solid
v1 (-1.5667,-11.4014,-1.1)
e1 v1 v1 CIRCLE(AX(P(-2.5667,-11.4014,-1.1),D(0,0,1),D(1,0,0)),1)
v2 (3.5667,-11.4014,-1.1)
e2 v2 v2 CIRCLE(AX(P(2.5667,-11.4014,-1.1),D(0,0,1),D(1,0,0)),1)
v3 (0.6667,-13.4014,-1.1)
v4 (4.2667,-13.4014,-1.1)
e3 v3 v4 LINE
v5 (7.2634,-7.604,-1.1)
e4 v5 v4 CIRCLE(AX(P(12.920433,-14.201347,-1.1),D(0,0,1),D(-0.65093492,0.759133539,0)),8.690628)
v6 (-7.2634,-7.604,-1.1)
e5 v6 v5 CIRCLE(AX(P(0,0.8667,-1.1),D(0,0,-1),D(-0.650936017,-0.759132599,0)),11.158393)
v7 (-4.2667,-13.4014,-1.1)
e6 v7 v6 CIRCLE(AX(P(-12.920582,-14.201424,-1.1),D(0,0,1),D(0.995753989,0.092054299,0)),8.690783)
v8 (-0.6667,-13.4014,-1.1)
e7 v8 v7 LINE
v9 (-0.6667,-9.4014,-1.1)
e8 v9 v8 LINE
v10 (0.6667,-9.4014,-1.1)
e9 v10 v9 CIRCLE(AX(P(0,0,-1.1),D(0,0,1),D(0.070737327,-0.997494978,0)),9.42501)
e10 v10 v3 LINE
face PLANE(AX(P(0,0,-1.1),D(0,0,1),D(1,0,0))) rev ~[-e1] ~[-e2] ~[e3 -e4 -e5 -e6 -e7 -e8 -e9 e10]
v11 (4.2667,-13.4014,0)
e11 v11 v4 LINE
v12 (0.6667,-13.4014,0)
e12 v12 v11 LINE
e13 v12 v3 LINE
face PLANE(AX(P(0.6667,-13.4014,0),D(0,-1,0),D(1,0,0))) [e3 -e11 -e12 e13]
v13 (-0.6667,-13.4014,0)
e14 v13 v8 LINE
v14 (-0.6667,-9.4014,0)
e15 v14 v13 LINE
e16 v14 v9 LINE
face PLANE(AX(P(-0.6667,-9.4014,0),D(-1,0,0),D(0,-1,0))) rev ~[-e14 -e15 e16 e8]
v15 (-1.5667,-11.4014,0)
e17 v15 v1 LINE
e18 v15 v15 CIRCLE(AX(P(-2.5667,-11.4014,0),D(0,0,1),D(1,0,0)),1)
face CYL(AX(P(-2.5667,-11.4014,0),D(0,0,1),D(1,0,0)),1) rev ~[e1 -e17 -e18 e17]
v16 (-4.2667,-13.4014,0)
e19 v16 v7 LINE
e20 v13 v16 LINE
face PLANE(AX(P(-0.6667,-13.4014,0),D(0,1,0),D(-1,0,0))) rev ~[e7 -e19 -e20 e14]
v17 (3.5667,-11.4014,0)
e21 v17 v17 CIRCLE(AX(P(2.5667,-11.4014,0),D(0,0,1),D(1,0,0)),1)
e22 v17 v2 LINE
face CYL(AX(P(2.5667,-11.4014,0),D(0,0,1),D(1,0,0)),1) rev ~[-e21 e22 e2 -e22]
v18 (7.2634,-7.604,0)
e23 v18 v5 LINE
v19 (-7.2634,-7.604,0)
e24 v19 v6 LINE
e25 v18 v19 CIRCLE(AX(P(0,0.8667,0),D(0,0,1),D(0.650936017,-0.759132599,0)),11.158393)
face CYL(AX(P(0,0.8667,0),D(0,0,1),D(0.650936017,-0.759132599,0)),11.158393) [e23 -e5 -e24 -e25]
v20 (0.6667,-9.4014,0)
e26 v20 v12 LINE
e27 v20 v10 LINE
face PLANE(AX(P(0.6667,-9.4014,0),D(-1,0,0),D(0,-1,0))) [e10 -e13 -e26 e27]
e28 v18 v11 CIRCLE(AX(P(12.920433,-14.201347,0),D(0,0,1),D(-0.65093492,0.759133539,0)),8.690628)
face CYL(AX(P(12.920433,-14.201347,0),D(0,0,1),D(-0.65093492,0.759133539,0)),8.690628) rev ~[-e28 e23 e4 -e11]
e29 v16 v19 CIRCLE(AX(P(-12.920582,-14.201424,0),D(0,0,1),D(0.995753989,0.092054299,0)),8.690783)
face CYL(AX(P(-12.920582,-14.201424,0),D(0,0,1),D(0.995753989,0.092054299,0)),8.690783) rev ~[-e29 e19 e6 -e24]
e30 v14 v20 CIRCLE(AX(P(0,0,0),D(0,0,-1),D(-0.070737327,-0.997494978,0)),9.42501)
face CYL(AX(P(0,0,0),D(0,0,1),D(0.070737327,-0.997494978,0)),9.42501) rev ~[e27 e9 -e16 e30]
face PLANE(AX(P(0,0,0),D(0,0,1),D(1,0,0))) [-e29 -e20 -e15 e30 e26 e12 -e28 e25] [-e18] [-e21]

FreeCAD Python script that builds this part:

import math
import FreeCAD as App
import Part
import Sketcher

V = App.Vector
Q = App.Units.Quantity

doc = App.newDocument("Part")
body = doc.addObject("PartDesign::Body", "Body")

# Sketch on XY plane
sketch1 = body.newObject("Sketcher::SketchObject", "Sketch")
sketch1.AttachmentSupport = (doc.getObject("XY_Plane"), [""])
sketch1.MapMode = "FlatFace"
sketch1.addGeometry(Part.LineSegment(V(-4.2667, -13.4014, 0), V(-0.6667, -13.4014, 0)), False)
sketch1.addGeometry(Part.LineSegment(V(-0.6667, -13.4014, 0), V(-0.6667, -9.4014, 0)), False)
sketch1.addGeometry(Part.ArcOfCircle(Part.Circle(V(0, 0, 0), V(0, 0, 1), 9.42501), math.radians(-85.943662), math.radians(265.943662)), False)
sketch1.addGeometry(Part.LineSegment(V(0.6667, -9.4014, 0), V(0.6667, -13.4014, 0)), False)
sketch1.addGeometry(Part.LineSegment(V(0.6667, -13.4014, 0), V(4.2667, -13.4014, 0)), False)
sketch1.addGeometry(Part.ArcOfCircle(Part.Circle(V(12.9205, -14.2014, 0), V(0, 0, 1), 8.690712), math.radians(130.612235), math.radians(174.718307)), False)
sketch1.addGeometry(Part.ArcOfCircle(Part.Circle(V(0, 0.8667, 0), V(0, 0, 1), 11.158393), math.radians(-49.387789), math.radians(229.387789)), False)
sketch1.addGeometry(Part.ArcOfCircle(Part.Circle(V(-12.9205, -14.2014, 0), V(0, 0, 1), 8.690699), math.radians(5.281693), math.radians(49.387765)), False)
sketch1.addConstraint(Sketcher.Constraint("Coincident", 0, 2, 1, 1))
sketch1.addConstraint(Sketcher.Constraint("Coincident", 1, 2, 2, 2))
sketch1.addConstraint(Sketcher.Constraint("Coincident", 2, 1, 3, 1))
sketch1.addConstraint(Sketcher.Constraint("Coincident", 3, 2, 4, 1))
sketch1.addConstraint(Sketcher.Constraint("Coincident", 4, 2, 5, 2))
sketch1.addConstraint(Sketcher.Constraint("Tangent", 5, 1, 6, 1))
sketch1.addConstraint(Sketcher.Constraint("Tangent", 6, 2, 7, 2))
sketch1.addConstraint(Sketcher.Constraint("Coincident", 7, 1, 0, 1))
sketch1.addConstraint(Sketcher.Constraint("Horizontal", 0))
sketch1.addConstraint(Sketcher.Constraint("Vertical", 1))
sketch1.addConstraint(Sketcher.Constraint("Vertical", 3))
sketch1.addConstraint(Sketcher.Constraint("Horizontal", 4))
sketch1.addConstraint(Sketcher.Constraint("Coincident", 2, 3, -1, 1))
sketch1.addConstraint(Sketcher.Constraint("Equal", 5, 7))
sketch1.addConstraint(Sketcher.Constraint("Symmetric", 5, 3, 7, 3, -2))
sketch1.addConstraint(Sketcher.Constraint("Symmetric", 0, 2, 3, 2, -2))
sketch1.addConstraint(Sketcher.Constraint("DistanceY", 1, 1, 1, 2, Q("4 mm")))
sketch1.addConstraint(Sketcher.Constraint("DistanceX", 0, 1, 0, 2, Q("3.6 mm")))
sketch1.addConstraint(Sketcher.Constraint("Radius", 2, Q("9.425 mm")))
sketch1.addConstraint(Sketcher.Constraint("DistanceY", 7, 3, 0, 2, Q("0.8 mm")))
sketch1.addConstraint(Sketcher.Constraint("DistanceY", -1, 1, 6, 3, Q("0.8667 mm")))
sketch1.addConstraint(Sketcher.Constraint("Radius", 5, Q("8.6907 mm")))
sketch1.addConstraint(Sketcher.Constraint("Radius", 6, Q("11.1584 mm")))
pad1 = body.newObject("PartDesign::Pad", "Pad")
pad1.Profile = sketch1
pad1.Length = 1.1
pad1.Reversed = True

# Sketch on XY plane
sketch2 = body.newObject("Sketcher::SketchObject", "Sketch001")
sketch2.AttachmentSupport = (doc.getObject("XY_Plane"), [""])
sketch2.MapMode = "FlatFace"
sketch2.addGeometry(Part.Circle(V(-2.5667, -11.4014, 0), V(0, 0, 1), 1), False)
sketch2.addGeometry(Part.Circle(V(2.5667, -11.4014, 0), V(0, 0, 1), 1), False)
sketch2.addConstraint(Sketcher.Constraint("Equal", 0, 1))
sketch2.addConstraint(Sketcher.Constraint("Symmetric", 0, 3, 1, 3, -2))
sketch2.addConstraint(Sketcher.Constraint("Diameter", 0, Q("2 mm")))
sketch2.addConstraint(Sketcher.Constraint("DistanceX", 0, 3, 1, 3, Q("5.1334 mm")))
sketch2.addConstraint(Sketcher.Constraint("DistanceY", 0, 3, -1, 1, Q("11.4014 mm")))
pocket1 = body.newObject("PartDesign::Pocket", "Pocket")
pocket1.Profile = sketch2
pocket1.Type = "ThroughAll"

doc.recompute()
